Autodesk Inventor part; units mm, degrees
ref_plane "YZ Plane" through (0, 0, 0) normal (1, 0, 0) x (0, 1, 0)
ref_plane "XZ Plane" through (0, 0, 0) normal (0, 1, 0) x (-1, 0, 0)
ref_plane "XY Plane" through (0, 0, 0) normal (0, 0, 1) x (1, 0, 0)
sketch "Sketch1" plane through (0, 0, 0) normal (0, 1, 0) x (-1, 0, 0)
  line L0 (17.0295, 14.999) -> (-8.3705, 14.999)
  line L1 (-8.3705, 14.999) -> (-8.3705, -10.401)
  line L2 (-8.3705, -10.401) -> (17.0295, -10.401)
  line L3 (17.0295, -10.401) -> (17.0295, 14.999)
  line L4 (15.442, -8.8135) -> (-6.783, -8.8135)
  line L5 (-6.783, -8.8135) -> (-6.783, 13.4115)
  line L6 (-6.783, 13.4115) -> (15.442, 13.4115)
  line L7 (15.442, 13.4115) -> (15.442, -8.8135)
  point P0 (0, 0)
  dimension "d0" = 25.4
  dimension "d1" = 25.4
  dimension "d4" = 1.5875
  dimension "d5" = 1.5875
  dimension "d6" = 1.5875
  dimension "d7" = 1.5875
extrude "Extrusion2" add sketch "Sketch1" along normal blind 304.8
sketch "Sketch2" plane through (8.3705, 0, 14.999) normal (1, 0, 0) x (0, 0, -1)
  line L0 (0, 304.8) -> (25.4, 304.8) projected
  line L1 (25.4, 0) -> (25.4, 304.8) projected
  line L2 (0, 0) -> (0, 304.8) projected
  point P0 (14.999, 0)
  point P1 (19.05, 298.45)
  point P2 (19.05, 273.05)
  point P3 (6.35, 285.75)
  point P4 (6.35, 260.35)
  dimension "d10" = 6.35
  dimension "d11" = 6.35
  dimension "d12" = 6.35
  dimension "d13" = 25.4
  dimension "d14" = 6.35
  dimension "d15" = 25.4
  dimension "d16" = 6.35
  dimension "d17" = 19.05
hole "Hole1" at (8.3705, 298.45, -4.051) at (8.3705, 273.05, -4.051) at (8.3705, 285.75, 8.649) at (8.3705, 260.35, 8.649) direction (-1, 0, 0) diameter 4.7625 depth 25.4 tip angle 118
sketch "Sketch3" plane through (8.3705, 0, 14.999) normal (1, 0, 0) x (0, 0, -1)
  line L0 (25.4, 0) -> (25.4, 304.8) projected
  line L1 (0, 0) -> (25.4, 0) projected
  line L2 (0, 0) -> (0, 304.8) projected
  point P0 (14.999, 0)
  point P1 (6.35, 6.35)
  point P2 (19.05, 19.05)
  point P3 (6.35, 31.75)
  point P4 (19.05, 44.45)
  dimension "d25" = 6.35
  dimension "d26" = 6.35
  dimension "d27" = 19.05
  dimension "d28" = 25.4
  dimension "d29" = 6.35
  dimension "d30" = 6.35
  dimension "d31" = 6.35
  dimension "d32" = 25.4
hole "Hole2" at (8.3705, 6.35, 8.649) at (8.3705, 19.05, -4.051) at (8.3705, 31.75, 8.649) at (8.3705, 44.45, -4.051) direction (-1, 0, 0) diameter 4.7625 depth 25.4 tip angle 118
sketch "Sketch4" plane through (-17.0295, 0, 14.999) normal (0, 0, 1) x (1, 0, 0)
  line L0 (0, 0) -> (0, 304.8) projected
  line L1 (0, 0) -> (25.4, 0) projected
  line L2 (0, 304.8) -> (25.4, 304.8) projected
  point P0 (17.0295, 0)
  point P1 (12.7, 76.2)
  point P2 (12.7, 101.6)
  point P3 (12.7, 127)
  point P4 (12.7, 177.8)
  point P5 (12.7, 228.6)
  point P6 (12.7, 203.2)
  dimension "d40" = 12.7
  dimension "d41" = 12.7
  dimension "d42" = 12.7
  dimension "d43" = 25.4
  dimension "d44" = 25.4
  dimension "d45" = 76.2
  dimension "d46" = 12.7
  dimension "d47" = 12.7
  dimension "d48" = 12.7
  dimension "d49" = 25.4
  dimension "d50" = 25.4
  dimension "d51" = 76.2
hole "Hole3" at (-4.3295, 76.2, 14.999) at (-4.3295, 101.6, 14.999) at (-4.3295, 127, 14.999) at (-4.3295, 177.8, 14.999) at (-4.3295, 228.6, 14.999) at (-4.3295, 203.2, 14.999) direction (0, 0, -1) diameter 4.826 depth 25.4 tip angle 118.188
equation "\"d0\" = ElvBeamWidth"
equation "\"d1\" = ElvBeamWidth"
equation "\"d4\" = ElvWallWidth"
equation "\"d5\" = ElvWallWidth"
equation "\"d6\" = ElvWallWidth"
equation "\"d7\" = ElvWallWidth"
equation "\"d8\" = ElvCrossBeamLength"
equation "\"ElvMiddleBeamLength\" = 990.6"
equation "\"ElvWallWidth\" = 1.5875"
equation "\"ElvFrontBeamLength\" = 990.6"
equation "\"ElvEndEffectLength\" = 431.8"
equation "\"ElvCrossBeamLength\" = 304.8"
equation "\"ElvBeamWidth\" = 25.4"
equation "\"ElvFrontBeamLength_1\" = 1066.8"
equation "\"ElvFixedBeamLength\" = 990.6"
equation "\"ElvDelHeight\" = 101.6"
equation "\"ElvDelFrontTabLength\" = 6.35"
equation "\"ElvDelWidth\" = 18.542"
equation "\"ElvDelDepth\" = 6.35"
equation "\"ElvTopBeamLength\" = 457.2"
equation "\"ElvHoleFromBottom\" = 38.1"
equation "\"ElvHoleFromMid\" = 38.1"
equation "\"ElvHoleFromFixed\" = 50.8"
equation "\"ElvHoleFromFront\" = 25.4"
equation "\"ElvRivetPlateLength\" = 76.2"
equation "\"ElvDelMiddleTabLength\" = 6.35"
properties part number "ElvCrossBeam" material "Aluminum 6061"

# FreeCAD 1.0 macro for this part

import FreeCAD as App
import Part
import Sketcher
Q = App.Units.Quantity

doc = App.newDocument("Part")
params = doc.addObject("Spreadsheet::Sheet", "Params")
for row, (alias, value) in enumerate([
    ("sketch1_width", "1 in"),
    ("pad1_length", "12 in"),
    ("sketch2_diameter", "0.1875 in"),
    ("hole_diameter", "0.1875 in"),
    ("hole_depth", "1 in"),
    ("sketch3_diameter", "0.1875 in"),
    ("hole2_diameter", "0.1875 in"),
    ("hole2_depth", "1 in"),
    ("sketch4_diameter", "0.19 in"),
    ("hole3_diameter", "0.19 in"),
    ("hole3_depth", "1 in"),
], start=1):
    params.set(f"A{row}", alias)
    params.set(f"B{row}", "=" + value)
    params.setAlias(f"B{row}", alias)

body = doc.addObject("PartDesign::Body", "Body")

sketch1 = doc.addObject("Sketcher::SketchObject", "Sketch")
body.addObject(sketch1)
sketch1.AttachmentSupport = (doc.XZ_Plane, [""])
sketch1.MapMode = "FlatFace"
sketch1.addGeometry(Part.LineSegment(App.Vector(-17.0295, -10.401, 0), App.Vector(-17.0295, 14.999, 0)), False)
sketch1.addGeometry(Part.LineSegment(App.Vector(-17.0295, 14.999, 0), App.Vector(8.3705, 14.999, 0)), False)
sketch1.addGeometry(Part.LineSegment(App.Vector(8.3705, 14.999, 0), App.Vector(8.3705, -10.401, 0)), False)
sketch1.addGeometry(Part.LineSegment(App.Vector(8.3705, -10.401, 0), App.Vector(-17.0295, -10.401, 0)), False)
sketch1.addGeometry(Part.LineSegment(App.Vector(-15.442, 13.4115, 0), App.Vector(-15.442, -8.8135, 0)), False)
sketch1.addGeometry(Part.LineSegment(App.Vector(-15.442, -8.8135, 0), App.Vector(6.783, -8.8135, 0)), False)
sketch1.addGeometry(Part.LineSegment(App.Vector(6.783, -8.8135, 0), App.Vector(6.783, 13.4115, 0)), False)
sketch1.addGeometry(Part.LineSegment(App.Vector(6.783, 13.4115, 0), App.Vector(-15.442, 13.4115, 0)), False)
sketch1.addConstraint(Sketcher.Constraint("Coincident", 0, 2, 1, 1))
sketch1.addConstraint(Sketcher.Constraint("Coincident", 1, 2, 2, 1))
sketch1.addConstraint(Sketcher.Constraint("Coincident", 2, 2, 3, 1))
sketch1.addConstraint(Sketcher.Constraint("Coincident", 3, 2, 0, 1))
sketch1.addConstraint(Sketcher.Constraint("Coincident", 4, 2, 5, 1))
sketch1.addConstraint(Sketcher.Constraint("Coincident", 5, 2, 6, 1))
sketch1.addConstraint(Sketcher.Constraint("Coincident", 6, 2, 7, 1))
sketch1.addConstraint(Sketcher.Constraint("Coincident", 7, 2, 4, 1))
sketch1.addConstraint(Sketcher.Constraint("Vertical", 0))
sketch1.addConstraint(Sketcher.Constraint("Horizontal", 1))
sketch1.addConstraint(Sketcher.Constraint("Vertical", 2))
sketch1.addConstraint(Sketcher.Constraint("Horizontal", 3))
sketch1.addConstraint(Sketcher.Constraint("Vertical", 4))
sketch1.addConstraint(Sketcher.Constraint("Horizontal", 5))
sketch1.addConstraint(Sketcher.Constraint("Vertical", 6))
sketch1.addConstraint(Sketcher.Constraint("Horizontal", 7))
sketch1.addConstraint(Sketcher.Constraint("Equal", 3, 0))
sketch1.addConstraint(Sketcher.Constraint("Equal", 7, 4))
sketch1.addConstraint(Sketcher.Constraint("DistanceX", 1, 1, 1, 2, Q("1 in")))
sketch1.addConstraint(Sketcher.Constraint("DistanceX", 3, 2, 4, 2, Q("0.0625 in")))
sketch1.addConstraint(Sketcher.Constraint("DistanceY", 3, 2, 4, 2, Q("0.0625 in")))
sketch1.addConstraint(Sketcher.Constraint("DistanceX", 5, 2, 2, 2, Q("0.0625 in")))
sketch1.addConstraint(Sketcher.Constraint("DistanceY", 4, 2, -1, 1, Q("0.347 in")))
sketch1.addConstraint(Sketcher.Constraint("DistanceX", 0, 2, -1, 1, 17.0295))
sketch1.setExpression("Constraints[18]", "Params.sketch1_width")
pad1 = doc.addObject("PartDesign::Pad", "Pad")
body.addObject(pad1)
pad1.Profile = sketch1
pad1.setExpression("Length", "Params.pad1_length")
pad1.Reversed = True

sketch2 = doc.addObject("Sketcher::SketchObject", "Sketch001")
body.addObject(sketch2)
sketch2.AttachmentSupport = (doc.YZ_Plane, [""])
sketch2.MapMode = "FlatFace"
sketch2.AttachmentOffset = App.Placement(App.Vector(0, 0, 8.3705), App.Rotation())
sketch2.addGeometry(Part.Circle(App.Vector(298.45, -4.051, 0), App.Vector(0, 0, 1), 2.38125), False)
sketch2.addGeometry(Part.Circle(App.Vector(273.05, -4.051, 0), App.Vector(0, 0, 1), 2.38125), False)
sketch2.addGeometry(Part.Circle(App.Vector(285.75, 8.649, 0), App.Vector(0, 0, 1), 2.38125), False)
sketch2.addGeometry(Part.Circle(App.Vector(260.35, 8.649, 0), App.Vector(0, 0, 1), 2.38125), False)
sketch2.addConstraint(Sketcher.Constraint("Equal", 0, 1))
sketch2.addConstraint(Sketcher.Constraint("Equal", 1, 2))
sketch2.addConstraint(Sketcher.Constraint("Equal", 2, 3))
sketch2.addConstraint(Sketcher.Constraint("Horizontal", 0, 3, 1, 3))
sketch2.addConstraint(Sketcher.Constraint("Horizontal", 2, 3, 3, 3))
sketch2.addConstraint(Sketcher.Constraint("Diameter", 0, Q("0.1875 in")))
sketch2.addConstraint(Sketcher.Constraint("DistanceX", 1, 3, 0, 3, Q("1 in")))
sketch2.addConstraint(Sketcher.Constraint("DistanceX", 3, 3, 2, 3, Q("1 in")))
sketch2.addConstraint(Sketcher.Constraint("DistanceX", 2, 3, 0, 3, Q("0.5 in")))
sketch2.addConstraint(Sketcher.Constraint("DistanceY", 0, 3, 2, 3, Q("0.5 in")))
sketch2.addConstraint(Sketcher.Constraint("DistanceX", -1, 1, 0, 3, Q("11.75 in")))
sketch2.addConstraint(Sketcher.Constraint("DistanceY", 0, 3, -1, 1, Q("0.1595 in")))
sketch2.setExpression("Constraints[5]", "Params.sketch2_diameter")
doc.recompute()
hole = doc.addObject("PartDesign::Hole", "Hole")
body.addObject(hole)
hole.Profile = sketch2
hole.ThreadType = "None"
hole.setExpression("Diameter", "Params.hole_diameter")
hole.DepthType = "Dimension"
hole.setExpression("Depth", "Params.hole_depth")
hole.DrillPoint = "Angled"
hole.DrillPointAngle = 118

sketch3 = doc.addObject("Sketcher::SketchObject", "Sketch002")
body.addObject(sketch3)
sketch3.AttachmentSupport = (doc.YZ_Plane, [""])
sketch3.MapMode = "FlatFace"
sketch3.AttachmentOffset = App.Placement(App.Vector(0, 0, 8.3705), App.Rotation())
sketch3.addGeometry(Part.Circle(App.Vector(6.35, 8.649, 0), App.Vector(0, 0, 1), 2.38125), False)
sketch3.addGeometry(Part.Circle(App.Vector(19.05, -4.051, 0), App.Vector(0, 0, 1), 2.38125), False)
sketch3.addGeometry(Part.Circle(App.Vector(31.75, 8.649, 0), App.Vector(0, 0, 1), 2.38125), False)
sketch3.addGeometry(Part.Circle(App.Vector(44.45, -4.051, 0), App.Vector(0, 0, 1), 2.38125), False)
sketch3.addConstraint(Sketcher.Constraint("Equal", 0, 1))
sketch3.addConstraint(Sketcher.Constraint("Equal", 1, 2))
sketch3.addConstraint(Sketcher.Constraint("Equal", 2, 3))
sketch3.addConstraint(Sketcher.Constraint("Horizontal", 0, 3, 2, 3))
sketch3.addConstraint(Sketcher.Constraint("Horizontal", 1, 3, 3, 3))
sketch3.addConstraint(Sketcher.Constraint("Diameter", 0, Q("0.1875 in")))
sketch3.addConstraint(Sketcher.Constraint("DistanceX", 0, 3, 2, 3, Q("1 in")))
sketch3.addConstraint(Sketcher.Constraint("DistanceX", 1, 3, 3, 3, Q("1 in")))
sketch3.addConstraint(Sketcher.Constraint("DistanceX", 0, 3, 1, 3, Q("0.5 in")))
sketch3.addConstraint(Sketcher.Constraint("DistanceY", 1, 3, 0, 3, Q("0.5 in")))
sketch3.addConstraint(Sketcher.Constraint("DistanceX", -1, 1, 0, 3, Q("0.25 in")))
sketch3.addConstraint(Sketcher.Constraint("DistanceY", -1, 1, 0, 3, Q("0.3405 in")))
sketch3.setExpression("Constraints[5]", "Params.sketch3_diameter")
doc.recompute()
hole2 = doc.addObject("PartDesign::Hole", "Hole001")
body.addObject(hole2)
hole2.Profile = sketch3
hole2.ThreadType = "None"
hole2.setExpression("Diameter", "Params.hole2_diameter")
hole2.DepthType = "Dimension"
hole2.setExpression("Depth", "Params.hole2_depth")
hole2.DrillPoint = "Angled"
hole2.DrillPointAngle = 118

sketch4 = doc.addObject("Sketcher::SketchObject", "Sketch003")
body.addObject(sketch4)
sketch4.AttachmentSupport = (doc.XY_Plane, [""])
sketch4.MapMode = "FlatFace"
sketch4.AttachmentOffset = App.Placement(App.Vector(0, 0, 0.5905118 * 25.4), App.Rotation())
sketch4.addGeometry(Part.Circle(App.Vector(-4.3295, 76.2, 0), App.Vector(0, 0, 1), 2.413), False)
sketch4.addGeometry(Part.Circle(App.Vector(-4.3295, 101.6, 0), App.Vector(0, 0, 1), 2.413), False)
sketch4.addGeometry(Part.Circle(App.Vector(-4.3295, 127, 0), App.Vector(0, 0, 1), 2.413), False)
sketch4.addGeometry(Part.Circle(App.Vector(-4.3295, 177.8, 0), App.Vector(0, 0, 1), 2.413), False)
sketch4.addGeometry(Part.Circle(App.Vector(-4.3295, 228.6, 0), App.Vector(0, 0, 1), 2.413), False)
sketch4.addGeometry(Part.Circle(App.Vector(-4.3295, 203.2, 0), App.Vector(0, 0, 1), 2.413), False)
sketch4.addConstraint(Sketcher.Constraint("Equal", 0, 1))
sketch4.addConstraint(Sketcher.Constraint("Equal", 1, 2))
sketch4.addConstraint(Sketcher.Constraint("Equal", 2, 3))
sketch4.addConstraint(Sketcher.Constraint("Equal", 3, 4))
sketch4.addConstraint(Sketcher.Constraint("Equal", 4, 5))
sketch4.addConstraint(Sketcher.Constraint("Vertical", 0, 3, 1, 3))
sketch4.addConstraint(Sketcher.Constraint("Vertical", 1, 3, 2, 3))
sketch4.addConstraint(Sketcher.Constraint("Vertical", 2, 3, 3, 3))
sketch4.addConstraint(Sketcher.Constraint("Vertical", 3, 3, 4, 3))
sketch4.addConstraint(Sketcher.Constraint("Vertical", 4, 3, 5, 3))
sketch4.addConstraint(Sketcher.Constraint("Diameter", 0, Q("0.19 in")))
sketch4.addConstraint(Sketcher.Constraint("DistanceY", -1, 1, 0, 3, Q("3 in")))
sketch4.addConstraint(Sketcher.Constraint("DistanceY", -1, 1, 1, 3, Q("4 in")))
sketch4.addConstraint(Sketcher.Constraint("DistanceY", -1, 1, 2, 3, Q("5 in")))
sketch4.addConstraint(Sketcher.Constraint("DistanceY", -1, 1, 3, 3, Q("7 in")))
sketch4.addConstraint(Sketcher.Constraint("DistanceY", -1, 1, 4, 3, Q("9 in")))
sketch4.addConstraint(Sketcher.Constraint("DistanceY", -1, 1, 5, 3, Q("8 in")))
sketch4.addConstraint(Sketcher.Constraint("DistanceX", 0, 3, -1, 1, 4.3295))
sketch4.setExpression("Constraints[10]", "Params.sketch4_diameter")
doc.recompute()
hole3 = doc.addObject("PartDesign::Hole", "Hole002")
body.addObject(hole3)
hole3.Profile = sketch4
hole3.ThreadType = "None"
hole3.setExpression("Diameter", "Params.hole3_diameter")
hole3.DepthType = "Dimension"
hole3.setExpression("Depth", "Params.hole3_depth")
hole3.DrillPoint = "Angled"
hole3.DrillPointAngle = 118.188

doc.recompute()
